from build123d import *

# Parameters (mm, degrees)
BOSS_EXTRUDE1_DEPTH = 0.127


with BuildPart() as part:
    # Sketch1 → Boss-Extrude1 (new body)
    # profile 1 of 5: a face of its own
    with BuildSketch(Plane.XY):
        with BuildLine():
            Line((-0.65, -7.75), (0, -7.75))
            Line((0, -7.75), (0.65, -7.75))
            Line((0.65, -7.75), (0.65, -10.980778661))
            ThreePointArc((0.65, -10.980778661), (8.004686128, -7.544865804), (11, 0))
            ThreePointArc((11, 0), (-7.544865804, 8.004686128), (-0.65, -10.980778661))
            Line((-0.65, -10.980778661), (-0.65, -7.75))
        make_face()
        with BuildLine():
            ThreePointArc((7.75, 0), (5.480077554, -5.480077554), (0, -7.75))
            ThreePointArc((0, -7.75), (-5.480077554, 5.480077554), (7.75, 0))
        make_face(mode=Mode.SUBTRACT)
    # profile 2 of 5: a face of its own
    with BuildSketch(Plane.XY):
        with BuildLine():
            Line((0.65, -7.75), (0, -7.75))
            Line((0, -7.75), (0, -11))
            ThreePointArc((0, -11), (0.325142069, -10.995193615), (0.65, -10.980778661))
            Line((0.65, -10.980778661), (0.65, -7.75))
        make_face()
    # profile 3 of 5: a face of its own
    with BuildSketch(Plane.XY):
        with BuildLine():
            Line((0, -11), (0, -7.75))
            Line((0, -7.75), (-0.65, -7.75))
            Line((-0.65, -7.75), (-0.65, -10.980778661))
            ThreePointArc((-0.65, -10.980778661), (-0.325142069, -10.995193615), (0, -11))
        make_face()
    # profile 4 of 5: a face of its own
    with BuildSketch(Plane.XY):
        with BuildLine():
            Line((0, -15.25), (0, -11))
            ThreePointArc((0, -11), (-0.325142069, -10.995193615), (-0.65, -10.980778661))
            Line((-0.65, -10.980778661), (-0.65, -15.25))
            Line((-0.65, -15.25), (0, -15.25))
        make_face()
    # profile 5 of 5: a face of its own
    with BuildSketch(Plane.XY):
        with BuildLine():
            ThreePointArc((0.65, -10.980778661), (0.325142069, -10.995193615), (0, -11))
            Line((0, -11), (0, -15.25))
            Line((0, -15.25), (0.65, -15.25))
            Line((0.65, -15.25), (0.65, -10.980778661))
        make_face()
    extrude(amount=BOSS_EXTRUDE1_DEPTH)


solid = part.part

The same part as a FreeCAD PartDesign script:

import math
import FreeCAD as App
import Part
import Sketcher

V = App.Vector
Q = App.Units.Quantity

doc = App.newDocument("Part")
body = doc.addObject("PartDesign::Body", "Body")

sketch1 = doc.addObject("Sketcher::SketchObject", "Sketch")
body.addObject(sketch1)
sketch1.AttachmentSupport = (doc.XY_Plane, [""])
sketch1.MapMode = "FlatFace"
sketch1.addGeometry(Part.ArcOfCircle(Part.Circle(V(0, 0, 0), V(0, 0, 1), 11), math.radians(0), math.radians(267)), False)
sketch1.addGeometry(Part.LineSegment(V(-0.7, -11, 0), V(-0.7, -15.2, 0)), False)
sketch1.addGeometry(Part.LineSegment(V(-0.7, -15.2, 0), V(0.7, -15.2, 0)), False)
sketch1.addGeometry(Part.LineSegment(V(0.7, -15.2, 0), V(0.7, -11, 0)), False)
sketch1.addGeometry(Part.ArcOfCircle(Part.Circle(V(0, 0, 0), V(0, 0, 1), 11), math.radians(-87), math.radians(0)), False)
sketch1.addGeometry(Part.ArcOfCircle(Part.Circle(V(0, 0, 0), V(0, 0, 1), 7.8), math.radians(-90), math.radians(0)), False)
sketch1.addGeometry(Part.ArcOfCircle(Part.Circle(V(0, 0, 0), V(0, 0, 1), 7.8), math.radians(0), math.radians(270)), False)
sketch1.addConstraint(Sketcher.Constraint("Coincident", 0, 2, 1, 1))
sketch1.addConstraint(Sketcher.Constraint("Coincident", 1, 2, 2, 1))
sketch1.addConstraint(Sketcher.Constraint("Coincident", 2, 2, 3, 1))
sketch1.addConstraint(Sketcher.Constraint("Coincident", 3, 2, 4, 1))
sketch1.addConstraint(Sketcher.Constraint("Tangent", 4, 2, 0, 1))
sketch1.addConstraint(Sketcher.Constraint("Tangent", 5, 1, 6, 2))
sketch1.addConstraint(Sketcher.Constraint("Coincident", 6, 1, 5, 2))
sketch1.addConstraint(Sketcher.Constraint("Vertical", 1))
sketch1.addConstraint(Sketcher.Constraint("Horizontal", 2))
sketch1.addConstraint(Sketcher.Constraint("Vertical", 3))
sketch1.addConstraint(Sketcher.Constraint("Coincident", 0, 3, -1, 1))
sketch1.addConstraint(Sketcher.Constraint("Coincident", 5, 3, -1, 1))
sketch1.addConstraint(Sketcher.Constraint("Equal", 0, 4))
sketch1.addConstraint(Sketcher.Constraint("PointOnObject", 4, 2, -1))
sketch1.addConstraint(Sketcher.Constraint("PointOnObject", 5, 1, -2))
sketch1.addConstraint(Sketcher.Constraint("PointOnObject", 6, 1, -1))
sketch1.addConstraint(Sketcher.Constraint("Horizontal", 0, 2, 3, 2))
sketch1.addConstraint(Sketcher.Constraint("Radius", 0, Q("11 mm")))
sketch1.addConstraint(Sketcher.Constraint("Radius", 5, Q("7.75 mm")))
sketch1.addConstraint(Sketcher.Constraint("DistanceX", 2, 1, 2, 2, Q("1.3 mm")))
sketch1.addConstraint(Sketcher.Constraint("DistanceY", 1, 2, 5, 1, Q("7.5 mm")))
pad1 = doc.addObject("PartDesign::Pad", "Pad")
body.addObject(pad1)
pad1.Profile = sketch1
pad1.Length = 0.127

doc.recompute()
